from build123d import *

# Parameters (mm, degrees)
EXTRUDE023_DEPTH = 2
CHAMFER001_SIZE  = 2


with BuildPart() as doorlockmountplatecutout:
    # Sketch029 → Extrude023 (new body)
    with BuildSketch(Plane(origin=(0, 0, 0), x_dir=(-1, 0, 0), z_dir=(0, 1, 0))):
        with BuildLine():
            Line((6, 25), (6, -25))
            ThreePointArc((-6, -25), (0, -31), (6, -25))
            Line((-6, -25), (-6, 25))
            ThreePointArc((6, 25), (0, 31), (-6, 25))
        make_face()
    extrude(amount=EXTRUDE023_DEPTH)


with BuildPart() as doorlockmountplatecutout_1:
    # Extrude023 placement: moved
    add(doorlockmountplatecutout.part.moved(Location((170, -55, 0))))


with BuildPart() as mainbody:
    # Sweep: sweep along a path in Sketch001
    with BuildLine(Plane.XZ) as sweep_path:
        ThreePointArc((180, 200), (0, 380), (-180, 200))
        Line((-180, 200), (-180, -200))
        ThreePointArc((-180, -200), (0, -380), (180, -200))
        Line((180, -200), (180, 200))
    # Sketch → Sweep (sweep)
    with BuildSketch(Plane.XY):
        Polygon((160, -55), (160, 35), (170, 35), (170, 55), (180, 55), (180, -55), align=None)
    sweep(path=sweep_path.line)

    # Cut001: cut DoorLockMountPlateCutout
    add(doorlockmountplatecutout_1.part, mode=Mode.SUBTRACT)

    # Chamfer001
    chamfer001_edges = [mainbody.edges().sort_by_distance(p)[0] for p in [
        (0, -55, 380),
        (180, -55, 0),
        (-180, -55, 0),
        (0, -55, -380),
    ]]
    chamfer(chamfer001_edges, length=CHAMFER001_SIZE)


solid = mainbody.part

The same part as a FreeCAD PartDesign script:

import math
import FreeCAD as App
import Part
import Sketcher
from FreeCAD import Vector


def edges_at(feature, points):
    """Names of the edges that pass closest to the given points."""
    edges = feature.Shape.Edges
    near = lambda p: min(range(len(edges)), key=lambda i: edges[i].distToShape(Part.Vertex(*p))[0])
    return sorted({f"Edge{near(p) + 1}" for p in points})


def add_polygon(sketch, points):
    """Adds a closed chain of lines whose ends are joined by coincident constraints."""
    first, n = sketch.GeometryCount, len(points)
    for a, b in zip(points, points[1:] + points[:1]):
        sketch.addGeometry(Part.LineSegment(App.Vector(*a, 0), App.Vector(*b, 0)), False)
    for i in range(n):
        sketch.addConstraint(Sketcher.Constraint("Coincident", first + i, 2, first + (i + 1) % n, 1))

doc = App.newDocument("Part")
params = doc.addObject("Spreadsheet::Sheet", "Params")
for row, (alias, value) in enumerate([
    ("sketch1_radius", "6 mm"),
    ("sketch1_height", "50 mm"),
    ("pad1_length", "2 mm"),
    ("sketch2_width", "20 mm"),
    ("sketch2_height", "90 mm"),
    ("sketch3_radius", "180 mm"),
    ("sketch3_height", "400 mm"),
    ("chamfer_size", "2 mm"),
], start=1):
    params.set(f"A{row}", alias)
    params.set(f"B{row}", "=" + value)
    params.setAlias(f"B{row}", alias)

body = doc.addObject("PartDesign::Body", "Body")

# Sketch on XZ plane
sketch1 = body.newObject("Sketcher::SketchObject", "Sketch")
sketch1.AttachmentSupport = (doc.getObject("XZ_Plane"), [""])
sketch1.MapMode = "FlatFace"
sketch1.addGeometry([
    Part.LineSegment(Vector(-6, -25, 0), Vector(-6, 25, 0)),
    Part.ArcOfCircle(Part.Circle(Vector(0, 25, 0), Vector(0, 0, 1), 6), math.radians(0), math.radians(180)),
    Part.LineSegment(Vector(6, 25, 0), Vector(6, -25, 0)),
    Part.ArcOfCircle(Part.Circle(Vector(0, -25, 0), Vector(0, 0, 1), 6), math.radians(180), math.radians(360)),
], False)
sketch1.addConstraint([
    Sketcher.Constraint("Tangent", 0, 2, 1, 2),
    Sketcher.Constraint("Tangent", 1, 1, 2, 1),
    Sketcher.Constraint("Tangent", 2, 2, 3, 2),
    Sketcher.Constraint("Tangent", 3, 1, 0, 1),
    Sketcher.Constraint("Vertical", 0),
    Sketcher.Constraint("Vertical", 2),
    Sketcher.Constraint("Symmetric", 1, 3, 3, 3, -1, 1),
    Sketcher.Constraint("Radius", 1, 6.0),
    Sketcher.Constraint("DistanceY", 0, 1, 0, 2, 50.0),
])
sketch1.setExpression("Constraints[7]", "Params.sketch1_radius")
sketch1.setExpression("Constraints[8]", "Params.sketch1_height")
pad1 = body.newObject("PartDesign::Pad", "Pad")
pad1.Profile = sketch1
pad1.setExpression("Length", "Params.pad1_length")
pad1.Reversed = True
body2 = doc.addObject("PartDesign::Body", "Body001")
doc.recompute()

body.Placement = App.Placement(Vector(170, -55, 0), App.Rotation(Vector(0, 0, 1), 0))
boolean = body2.newObject("PartDesign::Boolean", "Boolean")
boolean.Type = "Fuse"
boolean.addObjects([body])
body3 = doc.addObject("PartDesign::Body", "Body002")

# Sketch on XY plane
sketch2 = body3.newObject("Sketcher::SketchObject", "Sketch001")
sketch2.AttachmentSupport = (doc.getObject("XY_Plane002"), [""])
sketch2.MapMode = "FlatFace"
add_polygon(sketch2, [(160, 35), (160, -55), (180, -55), (180, 55), (170, 55), (170, 35)])  # lines 0-5
sketch2.addConstraint([
    Sketcher.Constraint("Vertical", 0),
    Sketcher.Constraint("Horizontal", 1),
    Sketcher.Constraint("Vertical", 2),
    Sketcher.Constraint("Horizontal", 3),
    Sketcher.Constraint("Vertical", 4),
    Sketcher.Constraint("Horizontal", 5),
    Sketcher.Constraint("Equal", 3, 5),
    Sketcher.Constraint("Equal", 1, 4),
    Sketcher.Constraint("DistanceX", 1, 1, 1, 2, 20.0),
    Sketcher.Constraint("DistanceY", 0, 2, 0, 1, 90.0),
    Sketcher.Constraint("DistanceX", -1, 1, 0, 2, 160.0),
    Sketcher.Constraint("DistanceY", 0, 2, -1, 1, 55.0),
])
sketch2.setExpression("Constraints[14]", "Params.sketch2_width")
sketch2.setExpression("Constraints[15]", "Params.sketch2_height")

# Sketch on XZ plane
sketch3 = body3.newObject("Sketcher::SketchObject", "Sketch002")
sketch3.AttachmentSupport = (doc.getObject("XZ_Plane002"), [""])
sketch3.MapMode = "FlatFace"
sketch3.addGeometry([
    Part.ArcOfCircle(Part.Circle(Vector(0, 200, 0), Vector(0, 0, 1), 180), math.radians(0), math.radians(180)),
    Part.LineSegment(Vector(-180, 200, 0), Vector(-180, -200, 0)),
    Part.ArcOfCircle(Part.Circle(Vector(0, -200, 0), Vector(0, 0, 1), 180), math.radians(180), math.radians(360)),
    Part.LineSegment(Vector(180, -200, 0), Vector(180, 200, 0)),
], False)
sketch3.addConstraint([
    Sketcher.Constraint("Tangent", 0, 2, 1, 1),
    Sketcher.Constraint("Tangent", 1, 2, 2, 1),
    Sketcher.Constraint("Tangent", 2, 2, 3, 1),
    Sketcher.Constraint("Tangent", 3, 2, 0, 1),
    Sketcher.Constraint("Vertical", 1),
    Sketcher.Constraint("Vertical", 3),
    Sketcher.Constraint("Symmetric", 0, 3, 2, 3, -1, 1),
    Sketcher.Constraint("Radius", 0, 180.0),
    Sketcher.Constraint("DistanceY", 1, 2, 1, 1, 400.0),
])
sketch3.setExpression("Constraints[7]", "Params.sketch3_radius")
sketch3.setExpression("Constraints[8]", "Params.sketch3_height")
doc.recompute()

additivepipe = body3.newObject("PartDesign::AdditivePipe", "AdditivePipe")
additivepipe.Profile = sketch2
additivepipe.Spine = (sketch3, ["Edge1", "Edge2", "Edge3", "Edge4"])
doc.recompute()

boolean2 = body3.newObject("PartDesign::Boolean", "Boolean001")
boolean2.Type = "Cut"
boolean2.addObjects([body2])
doc.recompute()

chamfer = body3.newObject("PartDesign::Chamfer", "Chamfer")
chamfer.Base = (boolean2, edges_at(boolean2, [
    (0, -55, 380),
    (180, -55, 0),
    (-180, -55, 0),
    (0, -55, -380),
]))
chamfer.setExpression("Size", "Params.chamfer_size")

doc.recompute()
